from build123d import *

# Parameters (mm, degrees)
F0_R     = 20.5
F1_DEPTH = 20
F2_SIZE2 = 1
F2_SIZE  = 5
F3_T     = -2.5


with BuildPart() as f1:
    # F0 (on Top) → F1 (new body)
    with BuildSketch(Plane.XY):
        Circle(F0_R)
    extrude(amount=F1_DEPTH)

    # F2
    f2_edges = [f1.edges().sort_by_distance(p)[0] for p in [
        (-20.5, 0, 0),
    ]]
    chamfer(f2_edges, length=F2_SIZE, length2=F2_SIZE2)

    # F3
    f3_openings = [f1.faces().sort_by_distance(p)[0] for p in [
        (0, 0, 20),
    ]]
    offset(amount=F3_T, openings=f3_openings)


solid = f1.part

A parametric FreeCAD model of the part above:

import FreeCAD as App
import Part
import Sketcher

V = App.Vector
Q = App.Units.Quantity


def edges_at(feature, points):
    """Names of the edges that pass closest to the given points."""
    edges = feature.Shape.Edges
    near = lambda p: min(range(len(edges)), key=lambda i: edges[i].distToShape(Part.Vertex(*p))[0])
    return sorted({f"Edge{near(p) + 1}" for p in points})


def faces_at(feature, points):
    """Names of the faces that lie closest to the given points."""
    faces = feature.Shape.Faces
    near = lambda p: min(range(len(faces)), key=lambda i: faces[i].distToShape(Part.Vertex(*p))[0])
    return sorted({f"Face{near(p) + 1}" for p in points})

doc = App.newDocument("Part")
params = doc.addObject("Spreadsheet::Sheet", "Params")
for row, (alias, value) in enumerate([
    ("sketch1_diameter", "41 mm"),
    ("pad1_length", "20 mm"),
    ("chamfer_size", "5 mm"),
    ("chamfer_size2", "1 mm"),
    ("thickness_wall", "2.5 mm"),
], start=1):
    params.set(f"A{row}", alias)
    params.set(f"B{row}", "=" + value)
    params.setAlias(f"B{row}", alias)

body = doc.addObject("PartDesign::Body", "Body")

sketch1 = body.newObject("Sketcher::SketchObject", "Sketch")
sketch1.AttachmentSupport = (doc.getObject("XY_Plane"), [""])
sketch1.MapMode = "FlatFace"
sketch1.addGeometry(Part.Circle(V(0, 0, 0), V(0, 0, 1), 20), False)
sketch1.addConstraint(Sketcher.Constraint("Coincident", 0, 3, -1, 1))
sketch1.addConstraint(Sketcher.Constraint("Diameter", 0, Q("41 mm")))
sketch1.setExpression("Constraints[1]", "Params.sketch1_diameter")
pad1 = body.newObject("PartDesign::Pad", "Pad")
pad1.Profile = sketch1
pad1.setExpression("Length", "Params.pad1_length")
doc.recompute()

chamfer = body.newObject("PartDesign::Chamfer", "Chamfer")
chamfer.Base = (pad1, edges_at(pad1, [(-20.5, 0, 0)]))
chamfer.ChamferType = "Two distances"
chamfer.setExpression("Size", "Params.chamfer_size")
chamfer.setExpression("Size2", "Params.chamfer_size2")
doc.recompute()

thickness = body.newObject("PartDesign::Thickness", "Thickness")
thickness.Base = (chamfer, faces_at(chamfer, [(0, 0, 20)]))
thickness.setExpression("Value", "Params.thickness_wall")
thickness.Reversed = True
thickness.Join = "Arc"

doc.recompute()
